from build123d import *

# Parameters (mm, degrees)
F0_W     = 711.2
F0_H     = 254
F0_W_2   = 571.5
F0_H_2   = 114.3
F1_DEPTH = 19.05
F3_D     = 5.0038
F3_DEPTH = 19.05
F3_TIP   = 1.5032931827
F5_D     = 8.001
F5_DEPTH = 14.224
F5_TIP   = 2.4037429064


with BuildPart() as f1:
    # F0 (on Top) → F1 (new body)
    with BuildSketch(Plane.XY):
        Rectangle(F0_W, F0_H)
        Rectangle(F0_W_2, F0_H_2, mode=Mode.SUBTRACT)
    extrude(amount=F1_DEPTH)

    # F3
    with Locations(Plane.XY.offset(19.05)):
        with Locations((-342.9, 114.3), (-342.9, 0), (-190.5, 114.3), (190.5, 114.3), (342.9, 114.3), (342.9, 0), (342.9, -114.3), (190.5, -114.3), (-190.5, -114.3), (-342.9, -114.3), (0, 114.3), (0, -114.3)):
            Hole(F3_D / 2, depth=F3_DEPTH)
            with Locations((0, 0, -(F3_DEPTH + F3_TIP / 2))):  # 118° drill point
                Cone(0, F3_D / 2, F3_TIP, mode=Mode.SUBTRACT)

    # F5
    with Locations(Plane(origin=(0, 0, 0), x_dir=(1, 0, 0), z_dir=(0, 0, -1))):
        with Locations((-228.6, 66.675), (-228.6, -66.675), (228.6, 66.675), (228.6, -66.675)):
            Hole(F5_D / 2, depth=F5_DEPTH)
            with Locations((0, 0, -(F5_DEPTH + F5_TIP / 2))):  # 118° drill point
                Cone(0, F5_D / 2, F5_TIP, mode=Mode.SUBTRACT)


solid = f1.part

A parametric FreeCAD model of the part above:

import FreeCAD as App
import Part
import Sketcher
from FreeCAD import Vector
Q = App.Units.Quantity


def add_polygon(sketch, points):
    """Adds a closed chain of lines whose ends are joined by coincident constraints."""
    first, n = sketch.GeometryCount, len(points)
    for a, b in zip(points, points[1:] + points[:1]):
        sketch.addGeometry(Part.LineSegment(App.Vector(*a, 0), App.Vector(*b, 0)), False)
    for i in range(n):
        sketch.addConstraint(Sketcher.Constraint("Coincident", first + i, 2, first + (i + 1) % n, 1))

doc = App.newDocument("Part")
body = doc.addObject("PartDesign::Body", "Body")

sketch1 = body.newObject("Sketcher::SketchObject", "Sketch")
sketch1.AttachmentSupport = (doc.getObject("XY_Plane"), [""])
sketch1.MapMode = "FlatFace"
add_polygon(sketch1, [(-356, 127), (-356, -127), (356, -127), (356, 127)])
add_polygon(sketch1, [(286, -57), (-286, -57), (-286, 57), (286, 57)])
sketch1.addConstraint([
    Sketcher.Constraint("Vertical", 0),
    Sketcher.Constraint("Horizontal", 1),
    Sketcher.Constraint("Vertical", 2),
    Sketcher.Constraint("Horizontal", 3),
    Sketcher.Constraint("Horizontal", 4),
    Sketcher.Constraint("Vertical", 5),
    Sketcher.Constraint("Horizontal", 6),
    Sketcher.Constraint("Vertical", 7),
    Sketcher.Constraint("Symmetric", 0, 2, 2, 2, -1, 1),
    Sketcher.Constraint("Symmetric", 4, 2, 6, 2, -1, 1),
    Sketcher.Constraint("DistanceX", 1, 1, 1, 2, Q("28 in")),
    Sketcher.Constraint("DistanceY", 0, 2, 0, 1, Q("10 in")),
    Sketcher.Constraint("DistanceX", 4, 2, 4, 1, Q("22.5 in")),
    Sketcher.Constraint("DistanceY", 5, 1, 5, 2, Q("4.5 in")),
])
pad1 = body.newObject("PartDesign::Pad", "Pad")
pad1.Profile = sketch1
pad1.Length = Q("0.75 in")

sketch2 = body.newObject("Sketcher::SketchObject", "Sketch001")
sketch2.AttachmentSupport = (doc.getObject("XY_Plane"), [""])
sketch2.MapMode = "FlatFace"
sketch2.AttachmentOffset = App.Placement(Vector(0, 0, 0.75 * 25.4), App.Rotation())
sketch2.addGeometry([
    Part.Circle(Vector(-342.9, 114.3, 0), Vector(0, 0, 1), 2.5),
    Part.Circle(Vector(-342.9, 0, 0), Vector(0, 0, 1), 2.5),
    Part.Circle(Vector(-190.5, 114.3, 0), Vector(0, 0, 1), 2.5),
    Part.Circle(Vector(190.5, 114.3, 0), Vector(0, 0, 1), 2.5),
    Part.Circle(Vector(342.9, 114.3, 0), Vector(0, 0, 1), 2.5),
    Part.Circle(Vector(342.9, 0, 0), Vector(0, 0, 1), 2.5),
    Part.Circle(Vector(342.9, -114.3, 0), Vector(0, 0, 1), 2.5),
    Part.Circle(Vector(190.5, -114.3, 0), Vector(0, 0, 1), 2.5),
    Part.Circle(Vector(-190.5, -114.3, 0), Vector(0, 0, 1), 2.5),
    Part.Circle(Vector(-342.9, -114.3, 0), Vector(0, 0, 1), 2.5),
    Part.Circle(Vector(0, 114.3, 0), Vector(0, 0, 1), 2.5),
    Part.Circle(Vector(0, -114.3, 0), Vector(0, 0, 1), 2.5),
], False)
sketch2.addConstraint([
    Sketcher.Constraint("Equal", 0, 1),
    Sketcher.Constraint("Equal", 1, 2),
    Sketcher.Constraint("Equal", 2, 3),
    Sketcher.Constraint("Equal", 3, 4),
    Sketcher.Constraint("Equal", 4, 5),
    Sketcher.Constraint("Equal", 5, 6),
    Sketcher.Constraint("Equal", 6, 7),
    Sketcher.Constraint("Equal", 7, 8),
    Sketcher.Constraint("Equal", 8, 9),
    Sketcher.Constraint("Equal", 9, 10),
    Sketcher.Constraint("Equal", 10, 11),
    Sketcher.Constraint("Symmetric", 1, 3, 5, 3, -1, 1),
    Sketcher.Constraint("Symmetric", 0, 3, 6, 3, -1, 1),
    Sketcher.Constraint("Symmetric", 2, 3, 7, 3, -1, 1),
    Sketcher.Constraint("Symmetric", 3, 3, 8, 3, -1, 1),
    Sketcher.Constraint("Symmetric", 4, 3, 9, 3, -1, 1),
    Sketcher.Constraint("Symmetric", 10, 3, 11, 3, -1, 1),
    Sketcher.Constraint("Symmetric", 2, 3, 3, 3, -2),
    Sketcher.Constraint("Symmetric", 0, 3, 4, 3, -2),
    Sketcher.Constraint("PointOnObject", 1, 3, -1),
    Sketcher.Constraint("PointOnObject", 10, 3, -2),
    Sketcher.Constraint("Horizontal", 0, 3, 2, 3),
    Sketcher.Constraint("Horizontal", 4, 3, 10, 3),
    Sketcher.Constraint("Vertical", 0, 3, 1, 3),
    Sketcher.Constraint("Diameter", 0, Q("0.197 in")),
    Sketcher.Constraint("DistanceX", 0, 3, 2, 3, Q("6 in")),
    Sketcher.Constraint("DistanceX", 2, 3, 3, 3, Q("15 in")),
    Sketcher.Constraint("DistanceY", 6, 3, 4, 3, Q("9 in")),
])
doc.recompute()
hole = body.newObject("PartDesign::Hole", "Hole")
hole.Profile = sketch2
hole.ThreadType = "None"
hole.Diameter = Q("0.197 in")
hole.DepthType = "Dimension"
hole.Depth = Q("0.75 in")
hole.DrillPoint = "Angled"
hole.DrillPointAngle = 118

sketch3 = body.newObject("Sketcher::SketchObject", "Sketch002")
sketch3.AttachmentSupport = (doc.getObject("XY_Plane"), [""])
sketch3.MapMode = "FlatFace"
sketch3.addGeometry([
    Part.Circle(Vector(-228.6, -66.7, 0), Vector(0, 0, 1), 4),
    Part.Circle(Vector(-228.6, 66.7, 0), Vector(0, 0, 1), 4),
    Part.Circle(Vector(228.6, -66.7, 0), Vector(0, 0, 1), 4),
    Part.Circle(Vector(228.6, 66.7, 0), Vector(0, 0, 1), 4),
], False)
sketch3.addConstraint([
    Sketcher.Constraint("Equal", 0, 1),
    Sketcher.Constraint("Equal", 1, 2),
    Sketcher.Constraint("Equal", 2, 3),
    Sketcher.Constraint("Symmetric", 1, 3, 2, 3, -1, 1),
    Sketcher.Constraint("Symmetric", 0, 3, 3, 3, -1, 1),
    Sketcher.Constraint("Symmetric", 0, 3, 2, 3, -2),
    Sketcher.Constraint("Diameter", 0, Q("0.315 in")),
    Sketcher.Constraint("DistanceX", 0, 3, -1, 1, Q("9 in")),
    Sketcher.Constraint("DistanceY", 0, 3, 1, 3, Q("5.25 in")),
])
doc.recompute()
hole2 = body.newObject("PartDesign::Hole", "Hole001")
hole2.Profile = sketch3
hole2.ThreadType = "None"
hole2.Diameter = Q("0.315 in")
hole2.DepthType = "Dimension"
hole2.Depth = Q("0.56 in")
hole2.DrillPoint = "Angled"
hole2.DrillPointAngle = 118
hole2.Reversed = True

doc.recompute()
